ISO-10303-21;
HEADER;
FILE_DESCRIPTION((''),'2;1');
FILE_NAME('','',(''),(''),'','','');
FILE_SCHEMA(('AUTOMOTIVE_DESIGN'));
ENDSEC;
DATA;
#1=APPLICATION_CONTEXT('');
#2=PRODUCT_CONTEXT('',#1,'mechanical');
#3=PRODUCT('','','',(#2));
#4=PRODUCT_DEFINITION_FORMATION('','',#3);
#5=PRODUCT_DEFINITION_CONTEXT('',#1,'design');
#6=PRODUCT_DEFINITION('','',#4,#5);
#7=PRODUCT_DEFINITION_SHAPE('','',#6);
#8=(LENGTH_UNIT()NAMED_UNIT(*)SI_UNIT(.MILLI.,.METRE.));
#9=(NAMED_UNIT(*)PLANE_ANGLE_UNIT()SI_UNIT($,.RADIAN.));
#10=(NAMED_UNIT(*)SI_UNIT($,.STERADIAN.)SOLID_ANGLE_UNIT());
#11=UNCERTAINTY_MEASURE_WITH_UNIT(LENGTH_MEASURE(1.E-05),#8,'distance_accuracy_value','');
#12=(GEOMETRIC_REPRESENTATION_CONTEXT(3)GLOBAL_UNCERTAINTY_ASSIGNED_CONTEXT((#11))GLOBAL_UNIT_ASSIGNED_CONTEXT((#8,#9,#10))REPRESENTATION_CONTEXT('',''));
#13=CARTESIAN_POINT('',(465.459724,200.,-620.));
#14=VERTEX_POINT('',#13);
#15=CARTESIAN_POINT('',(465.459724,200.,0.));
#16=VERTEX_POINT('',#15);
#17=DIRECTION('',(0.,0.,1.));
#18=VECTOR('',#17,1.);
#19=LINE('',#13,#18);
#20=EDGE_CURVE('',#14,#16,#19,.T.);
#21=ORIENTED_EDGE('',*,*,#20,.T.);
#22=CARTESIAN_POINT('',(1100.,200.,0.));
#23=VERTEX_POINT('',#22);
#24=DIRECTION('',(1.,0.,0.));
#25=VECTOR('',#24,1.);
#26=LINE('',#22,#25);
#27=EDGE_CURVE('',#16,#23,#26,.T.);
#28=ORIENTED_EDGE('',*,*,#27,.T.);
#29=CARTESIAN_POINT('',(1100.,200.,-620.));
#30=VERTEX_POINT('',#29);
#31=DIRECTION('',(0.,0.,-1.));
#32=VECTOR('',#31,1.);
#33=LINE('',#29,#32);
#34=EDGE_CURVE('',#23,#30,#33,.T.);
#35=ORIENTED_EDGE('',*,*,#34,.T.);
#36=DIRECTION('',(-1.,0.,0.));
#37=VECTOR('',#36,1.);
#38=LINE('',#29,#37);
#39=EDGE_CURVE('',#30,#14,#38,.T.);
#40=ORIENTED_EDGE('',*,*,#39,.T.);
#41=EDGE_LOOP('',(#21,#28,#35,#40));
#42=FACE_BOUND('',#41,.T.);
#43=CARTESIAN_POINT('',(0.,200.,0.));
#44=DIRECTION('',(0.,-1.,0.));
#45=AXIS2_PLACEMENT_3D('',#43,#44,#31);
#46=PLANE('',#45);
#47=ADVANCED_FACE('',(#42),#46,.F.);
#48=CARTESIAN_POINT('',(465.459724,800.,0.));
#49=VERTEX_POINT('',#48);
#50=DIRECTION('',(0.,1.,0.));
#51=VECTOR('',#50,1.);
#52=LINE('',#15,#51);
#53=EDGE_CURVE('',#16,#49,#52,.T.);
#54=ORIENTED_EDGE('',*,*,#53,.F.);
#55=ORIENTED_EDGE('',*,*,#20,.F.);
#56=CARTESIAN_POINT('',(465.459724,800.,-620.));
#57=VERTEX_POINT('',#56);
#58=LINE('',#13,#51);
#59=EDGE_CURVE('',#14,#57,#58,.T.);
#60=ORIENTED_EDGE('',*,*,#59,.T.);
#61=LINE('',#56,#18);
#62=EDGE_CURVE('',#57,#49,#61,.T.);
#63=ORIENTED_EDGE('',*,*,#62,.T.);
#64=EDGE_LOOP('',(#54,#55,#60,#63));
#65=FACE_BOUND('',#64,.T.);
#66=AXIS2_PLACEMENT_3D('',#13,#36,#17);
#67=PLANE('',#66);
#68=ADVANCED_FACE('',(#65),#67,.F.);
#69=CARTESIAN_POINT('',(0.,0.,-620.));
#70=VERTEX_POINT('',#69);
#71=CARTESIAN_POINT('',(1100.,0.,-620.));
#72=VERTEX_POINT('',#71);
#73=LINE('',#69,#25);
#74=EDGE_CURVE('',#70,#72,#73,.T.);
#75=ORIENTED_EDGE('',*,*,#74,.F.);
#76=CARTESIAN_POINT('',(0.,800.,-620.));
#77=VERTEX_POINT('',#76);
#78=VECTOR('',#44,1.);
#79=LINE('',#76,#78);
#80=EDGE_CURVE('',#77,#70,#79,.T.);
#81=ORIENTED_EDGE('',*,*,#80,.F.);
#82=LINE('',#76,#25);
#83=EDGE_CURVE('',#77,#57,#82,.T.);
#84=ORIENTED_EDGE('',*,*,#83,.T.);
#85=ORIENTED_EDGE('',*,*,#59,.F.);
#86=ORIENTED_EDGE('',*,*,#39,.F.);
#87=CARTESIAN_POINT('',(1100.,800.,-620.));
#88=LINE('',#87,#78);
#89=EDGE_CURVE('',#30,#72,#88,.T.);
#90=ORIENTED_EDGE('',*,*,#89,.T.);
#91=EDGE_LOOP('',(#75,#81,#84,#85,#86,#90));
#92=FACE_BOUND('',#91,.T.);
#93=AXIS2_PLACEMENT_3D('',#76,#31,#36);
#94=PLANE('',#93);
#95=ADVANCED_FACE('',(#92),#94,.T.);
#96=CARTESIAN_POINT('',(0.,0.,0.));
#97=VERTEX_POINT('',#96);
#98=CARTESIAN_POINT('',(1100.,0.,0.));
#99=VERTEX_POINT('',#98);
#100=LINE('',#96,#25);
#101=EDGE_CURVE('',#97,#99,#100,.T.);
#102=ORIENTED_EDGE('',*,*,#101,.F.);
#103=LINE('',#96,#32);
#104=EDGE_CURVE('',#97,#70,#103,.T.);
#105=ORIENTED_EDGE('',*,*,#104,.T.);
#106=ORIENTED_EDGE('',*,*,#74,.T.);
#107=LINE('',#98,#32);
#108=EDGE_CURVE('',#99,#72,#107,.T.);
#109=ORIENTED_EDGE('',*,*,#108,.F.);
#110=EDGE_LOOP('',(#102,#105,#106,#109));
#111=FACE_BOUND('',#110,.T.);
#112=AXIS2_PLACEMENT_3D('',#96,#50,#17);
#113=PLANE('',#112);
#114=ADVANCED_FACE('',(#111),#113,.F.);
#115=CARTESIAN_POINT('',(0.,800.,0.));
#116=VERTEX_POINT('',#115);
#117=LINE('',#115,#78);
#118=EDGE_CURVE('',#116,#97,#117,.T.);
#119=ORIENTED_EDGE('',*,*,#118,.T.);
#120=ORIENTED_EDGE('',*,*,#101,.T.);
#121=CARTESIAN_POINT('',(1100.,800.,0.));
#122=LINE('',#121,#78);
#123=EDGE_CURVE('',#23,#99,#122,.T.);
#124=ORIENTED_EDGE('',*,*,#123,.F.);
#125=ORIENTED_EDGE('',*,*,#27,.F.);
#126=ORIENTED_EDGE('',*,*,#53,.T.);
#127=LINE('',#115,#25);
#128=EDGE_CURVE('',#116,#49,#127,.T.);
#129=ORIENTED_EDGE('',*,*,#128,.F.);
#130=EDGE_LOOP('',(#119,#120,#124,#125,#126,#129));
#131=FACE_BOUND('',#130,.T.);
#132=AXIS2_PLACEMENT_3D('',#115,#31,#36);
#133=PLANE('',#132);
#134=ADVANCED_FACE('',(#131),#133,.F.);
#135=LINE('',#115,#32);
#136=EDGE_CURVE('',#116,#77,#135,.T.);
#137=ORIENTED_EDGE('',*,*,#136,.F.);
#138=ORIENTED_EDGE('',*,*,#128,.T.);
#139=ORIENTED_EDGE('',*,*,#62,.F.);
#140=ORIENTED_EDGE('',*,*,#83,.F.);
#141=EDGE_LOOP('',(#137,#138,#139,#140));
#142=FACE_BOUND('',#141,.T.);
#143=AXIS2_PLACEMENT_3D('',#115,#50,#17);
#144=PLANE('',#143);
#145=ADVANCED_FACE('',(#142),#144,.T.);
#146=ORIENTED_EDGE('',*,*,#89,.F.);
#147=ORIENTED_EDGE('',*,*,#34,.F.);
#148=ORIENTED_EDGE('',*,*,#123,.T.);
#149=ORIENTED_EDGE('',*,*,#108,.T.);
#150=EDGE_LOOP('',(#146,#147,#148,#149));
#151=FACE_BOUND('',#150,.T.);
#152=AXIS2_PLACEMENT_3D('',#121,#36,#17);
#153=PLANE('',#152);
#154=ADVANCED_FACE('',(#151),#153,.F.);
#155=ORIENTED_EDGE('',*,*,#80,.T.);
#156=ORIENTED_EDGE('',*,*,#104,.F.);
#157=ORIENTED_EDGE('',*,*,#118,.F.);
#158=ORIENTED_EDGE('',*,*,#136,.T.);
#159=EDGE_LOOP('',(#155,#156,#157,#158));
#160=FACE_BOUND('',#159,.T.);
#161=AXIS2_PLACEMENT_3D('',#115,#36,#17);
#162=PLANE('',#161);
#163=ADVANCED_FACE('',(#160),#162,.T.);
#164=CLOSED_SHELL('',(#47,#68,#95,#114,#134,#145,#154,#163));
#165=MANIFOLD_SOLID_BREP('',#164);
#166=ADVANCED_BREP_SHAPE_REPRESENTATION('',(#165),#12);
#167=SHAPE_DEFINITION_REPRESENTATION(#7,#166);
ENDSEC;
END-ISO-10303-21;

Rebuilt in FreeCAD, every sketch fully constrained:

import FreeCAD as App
import Part
import Sketcher
from FreeCAD import Vector


def add_polygon(sketch, points):
    """Adds a closed chain of lines whose ends are joined by coincident constraints."""
    first, n = sketch.GeometryCount, len(points)
    for a, b in zip(points, points[1:] + points[:1]):
        sketch.addGeometry(Part.LineSegment(App.Vector(*a, 0), App.Vector(*b, 0)), False)
    for i in range(n):
        sketch.addConstraint(Sketcher.Constraint("Coincident", first + i, 2, first + (i + 1) % n, 1))

doc = App.newDocument("Part")
body = doc.addObject("PartDesign::Body", "Body")

# Sketch on XZ plane
sketch1 = body.newObject("Sketcher::SketchObject", "Sketch")
sketch1.AttachmentSupport = (doc.getObject("XZ_Plane"), [""])
sketch1.MapMode = "FlatFace"
add_polygon(sketch1, [(0, -620), (0, 0), (1100, 0), (1100, -620)])  # lines 0-3
sketch1.addConstraint([
    Sketcher.Constraint("Vertical", 0),
    Sketcher.Constraint("Horizontal", 1),
    Sketcher.Constraint("Vertical", 2),
    Sketcher.Constraint("Horizontal", 3),
    Sketcher.Constraint("Coincident", 0, 2, -1, 1),
    Sketcher.Constraint("DistanceX", 1, 1, 1, 2, 1100.0),
    Sketcher.Constraint("DistanceY", 0, 1, 0, 2, 620.0),
])
pad1 = body.newObject("PartDesign::Pad", "Pad")
pad1.Profile = sketch1
pad1.Length = 800
pad1.Reversed = True

# Sketch on XZ plane
sketch2 = body.newObject("Sketcher::SketchObject", "Sketch001")
sketch2.AttachmentSupport = (doc.getObject("XZ_Plane"), [""])
sketch2.MapMode = "FlatFace"
sketch2.AttachmentOffset = App.Placement(Vector(0, 0, -800), App.Rotation())
add_polygon(sketch2, [(465, -620), (465, 0), (1100, 0), (1100, -620)])  # lines 0-3
sketch2.addConstraint([
    Sketcher.Constraint("Vertical", 0),
    Sketcher.Constraint("Horizontal", 1),
    Sketcher.Constraint("Vertical", 2),
    Sketcher.Constraint("Horizontal", 3),
    Sketcher.Constraint("PointOnObject", 0, 2, -1),
    Sketcher.Constraint("DistanceY", 0, 1, 0, 2, 620.0),
    Sketcher.Constraint("DistanceX", -1, 1, 1, 2, 1100.0),
    Sketcher.Constraint("DistanceX", 1, 1, 1, 2, 634.540276),
])
pocket1 = body.newObject("PartDesign::Pocket", "Pocket")
pocket1.Profile = sketch2
pocket1.Length = 600
pocket1.Reversed = True

doc.recompute()
